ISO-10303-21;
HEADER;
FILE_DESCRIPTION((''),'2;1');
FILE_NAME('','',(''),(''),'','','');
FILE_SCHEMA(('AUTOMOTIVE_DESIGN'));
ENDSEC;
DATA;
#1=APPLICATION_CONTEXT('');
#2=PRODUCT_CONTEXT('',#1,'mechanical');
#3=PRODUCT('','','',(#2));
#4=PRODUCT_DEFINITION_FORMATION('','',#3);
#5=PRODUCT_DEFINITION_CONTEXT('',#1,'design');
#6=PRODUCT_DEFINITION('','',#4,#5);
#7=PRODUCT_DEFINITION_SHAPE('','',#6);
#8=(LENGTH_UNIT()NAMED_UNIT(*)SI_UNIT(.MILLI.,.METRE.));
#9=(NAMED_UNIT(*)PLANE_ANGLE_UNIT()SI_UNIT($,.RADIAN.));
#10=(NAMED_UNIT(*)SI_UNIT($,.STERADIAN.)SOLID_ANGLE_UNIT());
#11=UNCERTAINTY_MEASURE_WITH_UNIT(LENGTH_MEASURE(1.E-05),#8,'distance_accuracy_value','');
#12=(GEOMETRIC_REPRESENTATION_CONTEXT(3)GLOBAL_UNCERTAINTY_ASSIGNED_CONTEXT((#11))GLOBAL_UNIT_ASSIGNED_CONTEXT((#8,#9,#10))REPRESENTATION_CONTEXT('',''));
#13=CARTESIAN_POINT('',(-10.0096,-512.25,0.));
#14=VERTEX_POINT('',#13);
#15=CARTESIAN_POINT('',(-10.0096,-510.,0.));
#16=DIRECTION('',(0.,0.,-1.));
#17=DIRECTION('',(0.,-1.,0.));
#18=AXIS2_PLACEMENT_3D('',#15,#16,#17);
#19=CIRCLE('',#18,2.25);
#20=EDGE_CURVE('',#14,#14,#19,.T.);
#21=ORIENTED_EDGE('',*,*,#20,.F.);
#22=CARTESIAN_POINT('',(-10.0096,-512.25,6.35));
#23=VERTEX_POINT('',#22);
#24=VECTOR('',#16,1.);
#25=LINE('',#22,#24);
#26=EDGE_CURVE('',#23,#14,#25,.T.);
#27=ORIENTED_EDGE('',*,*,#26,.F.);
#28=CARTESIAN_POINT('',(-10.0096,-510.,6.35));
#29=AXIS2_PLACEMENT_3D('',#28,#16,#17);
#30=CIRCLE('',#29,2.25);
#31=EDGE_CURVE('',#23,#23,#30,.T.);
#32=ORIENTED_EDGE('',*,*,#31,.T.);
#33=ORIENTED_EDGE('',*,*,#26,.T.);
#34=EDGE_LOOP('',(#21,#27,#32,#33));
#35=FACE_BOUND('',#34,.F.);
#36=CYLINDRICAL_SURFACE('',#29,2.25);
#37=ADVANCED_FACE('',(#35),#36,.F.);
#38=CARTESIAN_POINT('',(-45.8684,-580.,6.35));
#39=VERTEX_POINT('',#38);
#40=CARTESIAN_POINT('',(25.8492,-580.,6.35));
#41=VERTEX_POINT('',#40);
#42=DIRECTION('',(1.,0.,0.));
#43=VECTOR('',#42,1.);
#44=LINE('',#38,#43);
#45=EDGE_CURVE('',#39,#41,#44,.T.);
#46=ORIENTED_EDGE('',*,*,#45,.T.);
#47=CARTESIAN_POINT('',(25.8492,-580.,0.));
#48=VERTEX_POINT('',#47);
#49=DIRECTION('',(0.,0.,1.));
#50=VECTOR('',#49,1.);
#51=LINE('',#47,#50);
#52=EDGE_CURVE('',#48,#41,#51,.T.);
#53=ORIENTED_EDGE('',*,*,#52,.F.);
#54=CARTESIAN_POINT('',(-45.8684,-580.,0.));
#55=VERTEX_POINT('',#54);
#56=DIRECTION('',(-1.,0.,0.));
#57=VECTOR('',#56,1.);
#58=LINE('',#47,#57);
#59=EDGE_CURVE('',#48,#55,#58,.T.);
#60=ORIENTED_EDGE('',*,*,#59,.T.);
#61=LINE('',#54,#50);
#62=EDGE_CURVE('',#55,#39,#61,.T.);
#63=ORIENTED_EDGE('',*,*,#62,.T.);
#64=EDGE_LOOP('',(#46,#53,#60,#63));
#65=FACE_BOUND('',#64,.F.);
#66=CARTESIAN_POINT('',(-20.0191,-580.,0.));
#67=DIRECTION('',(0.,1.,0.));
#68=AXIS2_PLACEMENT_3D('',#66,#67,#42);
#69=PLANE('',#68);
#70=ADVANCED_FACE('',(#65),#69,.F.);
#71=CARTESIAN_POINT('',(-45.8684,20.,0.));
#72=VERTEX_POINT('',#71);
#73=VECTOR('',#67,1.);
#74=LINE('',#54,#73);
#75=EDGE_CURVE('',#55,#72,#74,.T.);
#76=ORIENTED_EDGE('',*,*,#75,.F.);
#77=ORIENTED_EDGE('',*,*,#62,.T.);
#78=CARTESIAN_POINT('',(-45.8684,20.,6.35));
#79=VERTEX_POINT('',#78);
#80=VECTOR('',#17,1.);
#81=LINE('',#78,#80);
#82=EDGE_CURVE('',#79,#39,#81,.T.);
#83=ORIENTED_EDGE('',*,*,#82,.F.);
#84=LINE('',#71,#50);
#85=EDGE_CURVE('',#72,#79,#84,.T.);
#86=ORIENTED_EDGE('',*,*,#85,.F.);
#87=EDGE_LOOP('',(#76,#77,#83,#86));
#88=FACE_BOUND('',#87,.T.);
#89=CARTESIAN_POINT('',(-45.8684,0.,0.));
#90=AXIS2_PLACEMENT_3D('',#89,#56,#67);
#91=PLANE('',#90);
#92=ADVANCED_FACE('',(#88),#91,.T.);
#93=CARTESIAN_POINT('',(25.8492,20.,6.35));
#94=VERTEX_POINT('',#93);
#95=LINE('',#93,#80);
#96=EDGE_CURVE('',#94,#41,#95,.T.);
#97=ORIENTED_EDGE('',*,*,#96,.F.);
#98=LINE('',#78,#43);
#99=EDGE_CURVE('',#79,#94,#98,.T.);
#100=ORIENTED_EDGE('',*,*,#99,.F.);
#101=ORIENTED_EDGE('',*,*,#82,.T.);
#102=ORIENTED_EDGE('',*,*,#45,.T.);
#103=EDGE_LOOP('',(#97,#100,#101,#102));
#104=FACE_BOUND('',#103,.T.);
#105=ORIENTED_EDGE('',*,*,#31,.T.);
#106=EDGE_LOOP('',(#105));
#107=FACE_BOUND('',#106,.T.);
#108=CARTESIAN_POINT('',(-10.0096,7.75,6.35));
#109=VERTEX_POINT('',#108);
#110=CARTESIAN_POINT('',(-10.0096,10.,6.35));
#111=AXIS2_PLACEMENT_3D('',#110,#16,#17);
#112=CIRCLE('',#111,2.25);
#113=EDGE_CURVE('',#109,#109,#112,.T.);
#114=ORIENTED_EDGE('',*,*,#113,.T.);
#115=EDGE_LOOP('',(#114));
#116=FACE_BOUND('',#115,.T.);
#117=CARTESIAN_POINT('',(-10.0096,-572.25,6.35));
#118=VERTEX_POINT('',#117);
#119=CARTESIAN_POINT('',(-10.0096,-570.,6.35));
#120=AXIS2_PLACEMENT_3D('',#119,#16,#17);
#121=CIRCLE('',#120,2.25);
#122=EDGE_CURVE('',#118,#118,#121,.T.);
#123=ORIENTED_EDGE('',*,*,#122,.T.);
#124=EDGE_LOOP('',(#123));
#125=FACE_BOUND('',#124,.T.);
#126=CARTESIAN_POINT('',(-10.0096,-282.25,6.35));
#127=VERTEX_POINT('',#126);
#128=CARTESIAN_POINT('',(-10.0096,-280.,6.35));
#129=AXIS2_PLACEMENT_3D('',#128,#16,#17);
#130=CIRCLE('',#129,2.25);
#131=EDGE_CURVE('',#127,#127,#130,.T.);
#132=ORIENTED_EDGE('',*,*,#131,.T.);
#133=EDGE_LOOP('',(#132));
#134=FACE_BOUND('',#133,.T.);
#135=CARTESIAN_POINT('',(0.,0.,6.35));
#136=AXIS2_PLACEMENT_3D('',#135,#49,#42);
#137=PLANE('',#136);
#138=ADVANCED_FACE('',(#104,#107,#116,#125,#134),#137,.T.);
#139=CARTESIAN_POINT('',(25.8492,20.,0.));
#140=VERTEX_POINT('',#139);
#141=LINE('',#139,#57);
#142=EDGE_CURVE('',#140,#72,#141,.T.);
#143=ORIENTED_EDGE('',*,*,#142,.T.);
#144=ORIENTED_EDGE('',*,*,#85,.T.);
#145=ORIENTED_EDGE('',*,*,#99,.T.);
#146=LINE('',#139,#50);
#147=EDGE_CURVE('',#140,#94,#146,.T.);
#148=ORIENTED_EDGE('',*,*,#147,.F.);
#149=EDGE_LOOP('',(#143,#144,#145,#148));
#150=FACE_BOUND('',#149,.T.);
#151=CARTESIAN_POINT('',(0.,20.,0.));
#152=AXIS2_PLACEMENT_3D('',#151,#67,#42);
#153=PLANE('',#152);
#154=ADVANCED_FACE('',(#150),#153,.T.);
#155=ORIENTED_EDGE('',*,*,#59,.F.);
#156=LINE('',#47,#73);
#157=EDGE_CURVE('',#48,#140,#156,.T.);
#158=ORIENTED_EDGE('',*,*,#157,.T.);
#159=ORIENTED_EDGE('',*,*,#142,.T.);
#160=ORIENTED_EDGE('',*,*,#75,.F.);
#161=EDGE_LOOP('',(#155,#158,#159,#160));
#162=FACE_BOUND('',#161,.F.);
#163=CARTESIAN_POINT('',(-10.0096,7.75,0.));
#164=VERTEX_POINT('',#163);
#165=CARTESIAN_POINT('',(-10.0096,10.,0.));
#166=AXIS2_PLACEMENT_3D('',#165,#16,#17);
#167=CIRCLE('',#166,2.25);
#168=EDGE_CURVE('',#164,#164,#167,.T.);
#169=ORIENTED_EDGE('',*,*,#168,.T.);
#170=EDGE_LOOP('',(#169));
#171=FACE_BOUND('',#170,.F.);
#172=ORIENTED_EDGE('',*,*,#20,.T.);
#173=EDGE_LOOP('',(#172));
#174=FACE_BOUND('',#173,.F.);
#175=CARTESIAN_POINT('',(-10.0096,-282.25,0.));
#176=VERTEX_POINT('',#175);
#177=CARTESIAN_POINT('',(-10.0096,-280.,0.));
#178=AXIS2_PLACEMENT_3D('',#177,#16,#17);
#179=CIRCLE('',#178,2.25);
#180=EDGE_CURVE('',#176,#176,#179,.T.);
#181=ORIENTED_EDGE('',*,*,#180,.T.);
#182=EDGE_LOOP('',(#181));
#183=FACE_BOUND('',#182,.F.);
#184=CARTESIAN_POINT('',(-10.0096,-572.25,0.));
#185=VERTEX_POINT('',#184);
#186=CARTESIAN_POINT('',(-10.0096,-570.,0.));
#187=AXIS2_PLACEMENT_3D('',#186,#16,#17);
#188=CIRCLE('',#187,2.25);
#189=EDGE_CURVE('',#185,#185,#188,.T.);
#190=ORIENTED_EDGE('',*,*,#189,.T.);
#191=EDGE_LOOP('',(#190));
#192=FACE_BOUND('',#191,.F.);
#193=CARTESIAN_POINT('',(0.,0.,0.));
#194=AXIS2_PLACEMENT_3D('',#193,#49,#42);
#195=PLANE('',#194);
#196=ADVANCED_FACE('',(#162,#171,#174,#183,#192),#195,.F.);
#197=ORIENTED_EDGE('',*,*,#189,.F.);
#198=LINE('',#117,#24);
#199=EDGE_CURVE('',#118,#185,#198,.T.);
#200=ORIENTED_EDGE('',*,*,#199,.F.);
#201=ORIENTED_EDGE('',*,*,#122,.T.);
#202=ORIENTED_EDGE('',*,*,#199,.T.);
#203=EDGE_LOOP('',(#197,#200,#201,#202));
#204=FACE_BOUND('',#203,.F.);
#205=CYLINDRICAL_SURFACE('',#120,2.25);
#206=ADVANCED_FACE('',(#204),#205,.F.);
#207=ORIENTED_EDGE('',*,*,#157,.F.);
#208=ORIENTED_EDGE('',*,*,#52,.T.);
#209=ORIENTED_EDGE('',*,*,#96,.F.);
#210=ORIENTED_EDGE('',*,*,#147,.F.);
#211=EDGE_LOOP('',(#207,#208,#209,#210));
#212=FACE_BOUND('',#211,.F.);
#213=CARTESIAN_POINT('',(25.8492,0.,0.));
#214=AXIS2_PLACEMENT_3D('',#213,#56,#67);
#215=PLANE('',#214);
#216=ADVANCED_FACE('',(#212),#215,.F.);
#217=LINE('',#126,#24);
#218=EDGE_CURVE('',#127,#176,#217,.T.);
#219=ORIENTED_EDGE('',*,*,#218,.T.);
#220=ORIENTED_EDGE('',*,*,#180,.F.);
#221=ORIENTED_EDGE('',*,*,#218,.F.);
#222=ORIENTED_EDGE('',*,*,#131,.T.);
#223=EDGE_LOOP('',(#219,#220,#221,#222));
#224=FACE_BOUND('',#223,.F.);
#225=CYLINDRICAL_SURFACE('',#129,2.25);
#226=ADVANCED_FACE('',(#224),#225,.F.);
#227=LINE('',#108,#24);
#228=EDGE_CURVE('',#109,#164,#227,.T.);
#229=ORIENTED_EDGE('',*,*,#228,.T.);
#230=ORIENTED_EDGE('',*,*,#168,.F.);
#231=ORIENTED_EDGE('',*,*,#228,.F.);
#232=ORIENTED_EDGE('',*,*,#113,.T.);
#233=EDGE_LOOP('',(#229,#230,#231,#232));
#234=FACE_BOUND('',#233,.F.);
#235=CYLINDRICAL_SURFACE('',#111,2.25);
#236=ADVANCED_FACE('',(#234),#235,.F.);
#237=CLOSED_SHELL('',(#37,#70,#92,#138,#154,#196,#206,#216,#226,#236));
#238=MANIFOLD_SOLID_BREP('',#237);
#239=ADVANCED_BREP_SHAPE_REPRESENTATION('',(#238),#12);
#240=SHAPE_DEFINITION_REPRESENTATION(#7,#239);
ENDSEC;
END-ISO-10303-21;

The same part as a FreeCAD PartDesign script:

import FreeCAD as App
import Part
import Sketcher

V = App.Vector

doc = App.newDocument("Part")
params = doc.addObject("Spreadsheet::Sheet", "Params")
for row, (alias, value) in enumerate([
    ("sketch1_height", "600 mm"),
    ("pad1_length", "6.35 mm"),
    ("sketch2_diameter", "4.5 mm"),
    ("hole_diameter", "4.5 mm"),
], start=1):
    params.set(f"A{row}", alias)
    params.set(f"B{row}", "=" + value)
    params.setAlias(f"B{row}", alias)

body = doc.addObject("PartDesign::Body", "Body")

sketch1 = body.newObject("Sketcher::SketchObject", "Sketch")
sketch1.AttachmentSupport = (doc.getObject("XY_Plane"), [""])
sketch1.MapMode = "FlatFace"
sketch1.addGeometry([
    Part.LineSegment(V(25.8492, 20, 0), V(-45.8684, 20, 0)),
    Part.LineSegment(V(-45.8684, 20, 0), V(-45.8684, -580, 0)),
    Part.LineSegment(V(-45.8684, -580, 0), V(25.8492, -580, 0)),
    Part.LineSegment(V(25.8492, -580, 0), V(25.8492, 20, 0)),
], False)
sketch1.addConstraint([
    Sketcher.Constraint("Coincident", 0, 2, 1, 1),
    Sketcher.Constraint("Coincident", 1, 2, 2, 1),
    Sketcher.Constraint("Coincident", 2, 2, 3, 1),
    Sketcher.Constraint("Coincident", 3, 2, 0, 1),
    Sketcher.Constraint("Horizontal", 0),
    Sketcher.Constraint("Vertical", 1),
    Sketcher.Constraint("Horizontal", 2),
    Sketcher.Constraint("Vertical", 3),
    Sketcher.Constraint("DistanceY", 1, 2, 1, 1, 600.0),
    Sketcher.Constraint("DistanceY", -1, 1, 0, 2, 20.0),
    Sketcher.Constraint("DistanceX", 0, 2, 0, 1, 71.7176),
    Sketcher.Constraint("DistanceX", 0, 2, -1, 1, 45.8684),
])
sketch1.setExpression("Constraints[8]", "Params.sketch1_height")
pad1 = body.newObject("PartDesign::Pad", "Pad")
pad1.Profile = sketch1
pad1.setExpression("Length", "Params.pad1_length")

sketch2 = body.newObject("Sketcher::SketchObject", "Sketch001")
sketch2.AttachmentSupport = (doc.getObject("XY_Plane"), [""])
sketch2.MapMode = "FlatFace"
sketch2.AttachmentOffset = App.Placement(V(0, 0, 6.35), App.Rotation())
sketch2.addGeometry([
    Part.Circle(V(-10.0096, -280, 0), V(0, 0, 1), 2.25),
    Part.Circle(V(-10.0096, -510, 0), V(0, 0, 1), 2.25),
    Part.Circle(V(-10.0096, -570, 0), V(0, 0, 1), 2.25),
    Part.Circle(V(-10.0096, 10, 0), V(0, 0, 1), 2.25),
], False)
sketch2.addConstraint([
    Sketcher.Constraint("Equal", 0, 1),
    Sketcher.Constraint("Equal", 1, 2),
    Sketcher.Constraint("Equal", 2, 3),
    Sketcher.Constraint("Vertical", 0, 3, 1, 3),
    Sketcher.Constraint("Vertical", 1, 3, 2, 3),
    Sketcher.Constraint("Vertical", 2, 3, 3, 3),
    Sketcher.Constraint("Diameter", 0, 4.5),
    Sketcher.Constraint("DistanceY", 0, 3, -1, 1, 280.0),
    Sketcher.Constraint("DistanceY", 1, 3, -1, 1, 510.0),
    Sketcher.Constraint("DistanceY", 2, 3, -1, 1, 570.0),
    Sketcher.Constraint("DistanceY", -1, 1, 3, 3, 10.0),
    Sketcher.Constraint("DistanceX", 0, 3, -1, 1, 10.0096),
])
sketch2.setExpression("Constraints[6]", "Params.sketch2_diameter")
doc.recompute()
hole = body.newObject("PartDesign::Hole", "Hole")
hole.Profile = sketch2
hole.ThreadType = "None"
hole.setExpression("Diameter", "Params.hole_diameter")
hole.DepthType = "ThroughAll"

doc.recompute()
